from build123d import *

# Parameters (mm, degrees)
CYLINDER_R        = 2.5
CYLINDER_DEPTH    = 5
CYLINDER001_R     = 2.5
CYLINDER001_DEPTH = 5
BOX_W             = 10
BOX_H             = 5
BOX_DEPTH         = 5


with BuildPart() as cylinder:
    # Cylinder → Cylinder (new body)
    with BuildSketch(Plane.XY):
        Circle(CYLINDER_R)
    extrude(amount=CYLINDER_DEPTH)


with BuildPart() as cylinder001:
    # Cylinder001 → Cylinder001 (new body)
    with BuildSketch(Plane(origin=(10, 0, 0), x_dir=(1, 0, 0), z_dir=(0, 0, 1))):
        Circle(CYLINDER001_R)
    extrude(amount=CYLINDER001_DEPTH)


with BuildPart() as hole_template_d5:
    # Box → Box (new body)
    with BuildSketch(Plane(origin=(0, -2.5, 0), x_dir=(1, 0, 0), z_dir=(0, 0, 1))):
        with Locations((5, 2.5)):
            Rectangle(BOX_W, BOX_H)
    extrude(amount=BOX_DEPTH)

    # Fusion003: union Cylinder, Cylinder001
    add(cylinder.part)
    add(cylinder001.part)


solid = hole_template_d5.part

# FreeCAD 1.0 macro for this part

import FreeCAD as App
import Part
import Sketcher


def add_polygon(sketch, points):
    """Adds a closed chain of lines whose ends are joined by coincident constraints."""
    first, n = sketch.GeometryCount, len(points)
    for a, b in zip(points, points[1:] + points[:1]):
        sketch.addGeometry(Part.LineSegment(App.Vector(*a, 0), App.Vector(*b, 0)), False)
    for i in range(n):
        sketch.addConstraint(Sketcher.Constraint("Coincident", first + i, 2, first + (i + 1) % n, 1))

doc = App.newDocument("Part")
params = doc.addObject("Spreadsheet::Sheet", "Params")
for row, (alias, value) in enumerate([
    ("sketch1_diameter", "5 mm"),
    ("pad1_length", "5 mm"),
    ("sketch2_diameter", "5 mm"),
    ("pad2_length", "5 mm"),
    ("sketch3_width", "10 mm"),
    ("sketch3_height", "5 mm"),
    ("pad3_length", "5 mm"),
], start=1):
    params.set(f"A{row}", alias)
    params.set(f"B{row}", "=" + value)
    params.setAlias(f"B{row}", alias)

body = doc.addObject("PartDesign::Body", "Body")

# Sketch on XY plane
sketch1 = body.newObject("Sketcher::SketchObject", "Sketch")
sketch1.AttachmentSupport = (doc.getObject("XY_Plane"), [""])
sketch1.MapMode = "FlatFace"
sketch1.addGeometry(Part.Circle(App.Vector(0, 0, 0), App.Vector(0, 0, 1), 2.5), False)
sketch1.addConstraint([
    Sketcher.Constraint("Coincident", 0, 3, -1, 1),
    Sketcher.Constraint("Diameter", 0, 5.0),
])
sketch1.setExpression("Constraints[1]", "Params.sketch1_diameter")
pad1 = body.newObject("PartDesign::Pad", "Pad")
pad1.Profile = sketch1
pad1.setExpression("Length", "Params.pad1_length")
body2 = doc.addObject("PartDesign::Body", "Body001")

# Sketch on XY plane
sketch2 = body2.newObject("Sketcher::SketchObject", "Sketch001")
sketch2.AttachmentSupport = (doc.getObject("XY_Plane001"), [""])
sketch2.MapMode = "FlatFace"
sketch2.addGeometry(Part.Circle(App.Vector(10, 0, 0), App.Vector(0, 0, 1), 2.5), False)
sketch2.addConstraint([
    Sketcher.Constraint("PointOnObject", 0, 3, -1),
    Sketcher.Constraint("Diameter", 0, 5.0),
    Sketcher.Constraint("DistanceX", -1, 1, 0, 3, 10.0),
])
sketch2.setExpression("Constraints[1]", "Params.sketch2_diameter")
pad2 = body2.newObject("PartDesign::Pad", "Pad001")
pad2.Profile = sketch2
pad2.setExpression("Length", "Params.pad2_length")
body3 = doc.addObject("PartDesign::Body", "Body002")

# Sketch on XY plane
sketch3 = body3.newObject("Sketcher::SketchObject", "Sketch002")
sketch3.AttachmentSupport = (doc.getObject("XY_Plane002"), [""])
sketch3.MapMode = "FlatFace"
add_polygon(sketch3, [(0, 2), (0, -2), (10, -2), (10, 2)])  # lines 0-3
sketch3.addConstraint([
    Sketcher.Constraint("Vertical", 0),
    Sketcher.Constraint("Horizontal", 1),
    Sketcher.Constraint("Vertical", 2),
    Sketcher.Constraint("Horizontal", 3),
    Sketcher.Constraint("Symmetric", 0, 2, 3, 2, -1, 1),
    Sketcher.Constraint("DistanceX", 1, 1, 1, 2, 10.0),
    Sketcher.Constraint("DistanceY", 0, 2, 0, 1, 5.0),
])
sketch3.setExpression("Constraints[9]", "Params.sketch3_width")
sketch3.setExpression("Constraints[10]", "Params.sketch3_height")
pad3 = body3.newObject("PartDesign::Pad", "Pad002")
pad3.Profile = sketch3
pad3.setExpression("Length", "Params.pad3_length")
doc.recompute()

boolean = body3.newObject("PartDesign::Boolean", "Boolean")
boolean.Type = "Fuse"
boolean.addObjects([body])
doc.recompute()

boolean2 = body3.newObject("PartDesign::Boolean", "Boolean001")
boolean2.Type = "Fuse"
boolean2.addObjects([body2])

doc.recompute()
